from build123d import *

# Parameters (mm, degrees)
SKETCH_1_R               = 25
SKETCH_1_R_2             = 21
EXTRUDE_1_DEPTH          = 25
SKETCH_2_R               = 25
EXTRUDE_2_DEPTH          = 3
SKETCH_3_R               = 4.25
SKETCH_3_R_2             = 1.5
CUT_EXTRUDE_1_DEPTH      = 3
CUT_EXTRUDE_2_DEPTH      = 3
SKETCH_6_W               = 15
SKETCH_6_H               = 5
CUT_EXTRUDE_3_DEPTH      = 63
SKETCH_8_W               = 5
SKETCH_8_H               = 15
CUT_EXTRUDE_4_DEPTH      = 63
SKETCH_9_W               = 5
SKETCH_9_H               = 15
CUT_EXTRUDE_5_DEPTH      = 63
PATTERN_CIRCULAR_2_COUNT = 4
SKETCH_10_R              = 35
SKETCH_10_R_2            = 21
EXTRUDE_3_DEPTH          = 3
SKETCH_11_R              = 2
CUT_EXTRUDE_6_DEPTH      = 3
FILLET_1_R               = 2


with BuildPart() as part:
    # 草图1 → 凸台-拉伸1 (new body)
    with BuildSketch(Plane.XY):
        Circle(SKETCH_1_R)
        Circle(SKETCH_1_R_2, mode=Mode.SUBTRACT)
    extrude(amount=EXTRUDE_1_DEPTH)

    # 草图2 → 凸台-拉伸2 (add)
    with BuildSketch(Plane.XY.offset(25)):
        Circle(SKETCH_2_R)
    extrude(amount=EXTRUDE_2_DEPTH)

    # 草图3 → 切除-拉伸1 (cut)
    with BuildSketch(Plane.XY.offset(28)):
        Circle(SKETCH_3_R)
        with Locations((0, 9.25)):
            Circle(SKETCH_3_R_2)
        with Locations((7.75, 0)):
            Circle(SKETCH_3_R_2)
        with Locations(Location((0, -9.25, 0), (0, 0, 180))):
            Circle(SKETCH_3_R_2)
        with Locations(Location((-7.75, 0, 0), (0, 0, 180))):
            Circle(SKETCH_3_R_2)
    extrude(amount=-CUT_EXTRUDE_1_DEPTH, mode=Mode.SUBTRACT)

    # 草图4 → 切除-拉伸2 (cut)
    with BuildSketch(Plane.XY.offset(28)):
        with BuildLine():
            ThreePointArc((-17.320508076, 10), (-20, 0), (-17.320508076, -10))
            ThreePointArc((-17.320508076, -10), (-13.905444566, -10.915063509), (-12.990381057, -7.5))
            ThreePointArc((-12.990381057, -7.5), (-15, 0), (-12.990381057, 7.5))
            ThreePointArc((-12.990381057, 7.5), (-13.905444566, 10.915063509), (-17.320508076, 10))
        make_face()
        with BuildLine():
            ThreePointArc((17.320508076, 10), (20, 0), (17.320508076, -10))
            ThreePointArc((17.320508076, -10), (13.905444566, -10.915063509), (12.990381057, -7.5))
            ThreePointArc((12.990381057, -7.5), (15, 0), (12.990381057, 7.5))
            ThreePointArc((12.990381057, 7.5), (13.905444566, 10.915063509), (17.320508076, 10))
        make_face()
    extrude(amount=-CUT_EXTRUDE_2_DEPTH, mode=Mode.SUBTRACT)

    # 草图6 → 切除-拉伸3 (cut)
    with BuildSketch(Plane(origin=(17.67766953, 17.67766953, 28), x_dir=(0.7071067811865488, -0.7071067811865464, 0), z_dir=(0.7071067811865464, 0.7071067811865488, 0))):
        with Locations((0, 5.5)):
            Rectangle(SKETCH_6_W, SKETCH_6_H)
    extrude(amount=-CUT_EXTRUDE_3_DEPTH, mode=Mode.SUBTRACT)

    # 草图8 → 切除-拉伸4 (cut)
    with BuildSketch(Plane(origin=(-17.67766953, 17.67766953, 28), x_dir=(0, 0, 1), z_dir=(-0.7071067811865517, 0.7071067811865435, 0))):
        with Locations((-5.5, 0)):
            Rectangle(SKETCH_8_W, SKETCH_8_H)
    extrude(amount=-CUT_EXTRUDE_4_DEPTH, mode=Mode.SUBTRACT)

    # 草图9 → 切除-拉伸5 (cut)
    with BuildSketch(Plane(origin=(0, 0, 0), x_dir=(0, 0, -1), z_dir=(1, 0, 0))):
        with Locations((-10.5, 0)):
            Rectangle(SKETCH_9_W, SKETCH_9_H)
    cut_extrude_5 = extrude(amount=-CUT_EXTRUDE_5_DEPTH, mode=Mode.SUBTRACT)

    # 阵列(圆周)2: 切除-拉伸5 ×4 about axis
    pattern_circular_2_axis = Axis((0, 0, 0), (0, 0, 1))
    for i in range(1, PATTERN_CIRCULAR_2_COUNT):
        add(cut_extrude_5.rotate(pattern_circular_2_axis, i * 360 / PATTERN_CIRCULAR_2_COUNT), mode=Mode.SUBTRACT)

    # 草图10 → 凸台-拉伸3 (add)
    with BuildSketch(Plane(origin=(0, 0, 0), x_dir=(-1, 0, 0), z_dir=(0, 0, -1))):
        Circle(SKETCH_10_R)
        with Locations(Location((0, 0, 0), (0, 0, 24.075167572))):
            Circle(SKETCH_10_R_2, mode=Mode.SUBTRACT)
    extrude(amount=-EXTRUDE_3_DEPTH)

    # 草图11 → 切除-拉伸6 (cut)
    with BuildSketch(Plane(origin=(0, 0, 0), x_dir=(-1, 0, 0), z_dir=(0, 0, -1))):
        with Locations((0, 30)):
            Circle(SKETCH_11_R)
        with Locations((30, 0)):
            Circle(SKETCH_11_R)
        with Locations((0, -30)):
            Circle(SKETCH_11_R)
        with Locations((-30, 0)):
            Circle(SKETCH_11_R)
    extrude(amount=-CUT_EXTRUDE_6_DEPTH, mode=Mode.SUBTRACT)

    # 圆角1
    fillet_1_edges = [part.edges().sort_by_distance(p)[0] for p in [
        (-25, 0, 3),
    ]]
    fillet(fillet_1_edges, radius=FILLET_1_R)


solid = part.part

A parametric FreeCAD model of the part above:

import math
import FreeCAD as App
import Part
import Sketcher


def edges_at(feature, points):
    """Names of the edges that pass closest to the given points."""
    edges = feature.Shape.Edges
    near = lambda p: min(range(len(edges)), key=lambda i: edges[i].distToShape(Part.Vertex(*p))[0])
    return sorted({f"Edge{near(p) + 1}" for p in points})


def add_polygon(sketch, points):
    """Adds a closed chain of lines whose ends are joined by coincident constraints."""
    first, n = sketch.GeometryCount, len(points)
    for a, b in zip(points, points[1:] + points[:1]):
        sketch.addGeometry(Part.LineSegment(App.Vector(*a, 0), App.Vector(*b, 0)), False)
    for i in range(n):
        sketch.addConstraint(Sketcher.Constraint("Coincident", first + i, 2, first + (i + 1) % n, 1))

doc = App.newDocument("Part")
body = doc.addObject("PartDesign::Body", "Body")

sketch1 = body.newObject("Sketcher::SketchObject", "Sketch")
sketch1.AttachmentSupport = (doc.getObject("XY_Plane"), [""])
sketch1.MapMode = "FlatFace"
sketch1.addGeometry([
    Part.Circle(App.Vector(0, 0, 0), App.Vector(0, 0, 1), 25),
    Part.Circle(App.Vector(0, 0, 0), App.Vector(0, 0, 1), 21),
], False)
sketch1.addConstraint([
    Sketcher.Constraint("Coincident", 0, 3, -1, 1),
    Sketcher.Constraint("Coincident", 1, 3, -1, 1),
    Sketcher.Constraint("Diameter", 0, 50.0),
    Sketcher.Constraint("Diameter", 1, 42.0),
])
pad1 = body.newObject("PartDesign::Pad", "Pad")
pad1.Profile = sketch1
pad1.Length = 25

sketch2 = body.newObject("Sketcher::SketchObject", "Sketch001")
sketch2.AttachmentSupport = (doc.getObject("XY_Plane"), [""])
sketch2.MapMode = "FlatFace"
sketch2.AttachmentOffset = App.Placement(App.Vector(0, 0, 25), App.Rotation())
sketch2.addGeometry(Part.Circle(App.Vector(0, 0, 0), App.Vector(0, 0, 1), 25), False)
sketch2.addConstraint([
    Sketcher.Constraint("Coincident", 0, 3, -1, 1),
    Sketcher.Constraint("Diameter", 0, 50.0),
])
pad2 = body.newObject("PartDesign::Pad", "Pad001")
pad2.Profile = sketch2
pad2.Length = 3

sketch3 = body.newObject("Sketcher::SketchObject", "Sketch002")
sketch3.AttachmentSupport = (doc.getObject("XY_Plane"), [""])
sketch3.MapMode = "FlatFace"
sketch3.AttachmentOffset = App.Placement(App.Vector(0, 0, 28), App.Rotation())
sketch3.addGeometry([
    Part.Circle(App.Vector(0, 0, 0), App.Vector(0, 0, 1), 4.2),
    Part.Circle(App.Vector(0, 9.2, 0), App.Vector(0, 0, 1), 1.5),
    Part.Circle(App.Vector(7.8, 0, 0), App.Vector(0, 0, 1), 1.5),
    Part.Circle(App.Vector(0, -9.2, 0), App.Vector(0, 0, 1), 1.5),
    Part.Circle(App.Vector(-7.8, 0, 0), App.Vector(0, 0, 1), 1.5),
], False)
sketch3.addConstraint([
    Sketcher.Constraint("Coincident", 0, 3, -1, 1),
    Sketcher.Constraint("Equal", 1, 2),
    Sketcher.Constraint("Equal", 2, 3),
    Sketcher.Constraint("Equal", 3, 4),
    Sketcher.Constraint("Symmetric", 1, 3, 3, 3, -1, 1),
    Sketcher.Constraint("Symmetric", 2, 3, 4, 3, -1, 1),
    Sketcher.Constraint("PointOnObject", 1, 3, -2),
    Sketcher.Constraint("PointOnObject", 2, 3, -1),
    Sketcher.Constraint("Diameter", 1, 3.0),
    Sketcher.Constraint("Diameter", 0, 8.5),
    Sketcher.Constraint("DistanceY", 3, 3, 1, 3, 18.5),
    Sketcher.Constraint("DistanceX", 4, 3, 2, 3, 15.5),
])
pocket1 = body.newObject("PartDesign::Pocket", "Pocket")
pocket1.Profile = sketch3
pocket1.Length = 3

sketch4 = body.newObject("Sketcher::SketchObject", "Sketch003")
sketch4.AttachmentSupport = (doc.getObject("XY_Plane"), [""])
sketch4.MapMode = "FlatFace"
sketch4.AttachmentOffset = App.Placement(App.Vector(0, 0, 28), App.Rotation())
sketch4.addGeometry([
    Part.ArcOfCircle(Part.Circle(App.Vector(0, 0, 0), App.Vector(0, 0, 1), 20), math.radians(150), math.radians(210)),
    Part.ArcOfCircle(Part.Circle(App.Vector(-15.2, -8.8, 0), App.Vector(0, 0, 1), 2.5), math.radians(-150), math.radians(30)),
    Part.ArcOfCircle(Part.Circle(App.Vector(0, 0, 0), App.Vector(0, 0, 1), 15), math.radians(150), math.radians(210)),
    Part.ArcOfCircle(Part.Circle(App.Vector(-15.2, 8.8, 0), App.Vector(0, 0, 1), 2.5), math.radians(-30), math.radians(150)),
    Part.ArcOfCircle(Part.Circle(App.Vector(0, 0, 0), App.Vector(0, 0, 1), 20), math.radians(-30), math.radians(30)),
    Part.ArcOfCircle(Part.Circle(App.Vector(15.2, 8.8, 0), App.Vector(0, 0, 1), 2.5), math.radians(30), math.radians(210)),
    Part.ArcOfCircle(Part.Circle(App.Vector(0, 0, 0), App.Vector(0, 0, 1), 15), math.radians(-30), math.radians(30)),
    Part.ArcOfCircle(Part.Circle(App.Vector(15.2, -8.8, 0), App.Vector(0, 0, 1), 2.5), math.radians(150), math.radians(330)),
], False)
sketch4.addConstraint([
    Sketcher.Constraint("Tangent", 0, 2, 1, 1),
    Sketcher.Constraint("Tangent", 1, 2, 2, 2),
    Sketcher.Constraint("Tangent", 2, 1, 3, 1),
    Sketcher.Constraint("Tangent", 3, 2, 0, 1),
    Sketcher.Constraint("Tangent", 4, 2, 5, 1),
    Sketcher.Constraint("Tangent", 5, 2, 6, 2),
    Sketcher.Constraint("Tangent", 6, 1, 7, 1),
    Sketcher.Constraint("Tangent", 7, 2, 4, 1),
    Sketcher.Constraint("Coincident", 0, 3, -1, 1),
    Sketcher.Constraint("Coincident", 2, 3, -1, 1),
    Sketcher.Constraint("Coincident", 4, 3, -1, 1),
    Sketcher.Constraint("Coincident", 6, 3, -1, 1),
    Sketcher.Constraint("Equal", 0, 4),
    Sketcher.Constraint("Equal", 3, 5),
    Sketcher.Constraint("Horizontal", 3, 3, 5, 3),
    Sketcher.Constraint("Horizontal", 1, 3, 7, 3),
    Sketcher.Constraint("Vertical", 1, 3, 3, 3),
    Sketcher.Constraint("Radius", 0, 20.0),
    Sketcher.Constraint("Radius", 2, 15.0),
    Sketcher.Constraint("DistanceY", 0, 2, -1, 1, 10.0),
])
pocket2 = body.newObject("PartDesign::Pocket", "Pocket001")
pocket2.Profile = sketch4
pocket2.Length = 3

sketch5 = body.newObject("Sketcher::SketchObject", "Sketch004")
sketch5.Placement = App.Placement(App.Vector(17.67767, 17.67767, 28), App.Rotation(App.Vector(0.707106781, -0.707106781, 0), App.Vector(0, 0, -0.999999999), App.Vector(0.707106781, 0.707106781, 0), "ZXY"))
add_polygon(sketch5, [(-7.5, 8), (-7.5, 3), (7.5, 3), (7.5, 8)])
sketch5.addConstraint([
    Sketcher.Constraint("Vertical", 0),
    Sketcher.Constraint("Horizontal", 1),
    Sketcher.Constraint("Vertical", 2),
    Sketcher.Constraint("Horizontal", 3),
    Sketcher.Constraint("DistanceX", 1, 1, 1, 2, 15.0),
    Sketcher.Constraint("DistanceY", 0, 2, 0, 1, 5.0),
    Sketcher.Constraint("DistanceY", -1, 1, 0, 2, 3.0),
    Sketcher.Constraint("DistanceX", 0, 2, -1, 1, 7.5),
])
pocket3 = body.newObject("PartDesign::Pocket", "Pocket002")
pocket3.Profile = sketch5
pocket3.Length = 63

sketch6 = body.newObject("Sketcher::SketchObject", "Sketch005")
sketch6.Placement = App.Placement(App.Vector(-17.67767, 17.67767, 28), App.Rotation(App.Vector(0, 0, 1), App.Vector(0.707106781, 0.707106781, 0), App.Vector(-0.707106781, 0.707106781, 0), "ZXY"))
add_polygon(sketch6, [(-8, 7), (-8, -7), (-3, -7), (-3, 7)])
sketch6.addConstraint([
    Sketcher.Constraint("Vertical", 0),
    Sketcher.Constraint("Horizontal", 1),
    Sketcher.Constraint("Vertical", 2),
    Sketcher.Constraint("Horizontal", 3),
    Sketcher.Constraint("DistanceX", 1, 1, 1, 2, 5.0),
    Sketcher.Constraint("DistanceY", 0, 2, 0, 1, 15.0),
    Sketcher.Constraint("DistanceX", 0, 2, -1, 1, 8.0),
    Sketcher.Constraint("DistanceY", 0, 2, -1, 1, 7.5),
])
pocket4 = body.newObject("PartDesign::Pocket", "Pocket003")
pocket4.Profile = sketch6
pocket4.Length = 63

sketch7 = body.newObject("Sketcher::SketchObject", "Sketch006")
sketch7.AttachmentSupport = (doc.getObject("YZ_Plane"), [""])
sketch7.MapMode = "FlatFace"
add_polygon(sketch7, [(8, 13), (-8, 13), (-8, 8), (8, 8)])
sketch7.addConstraint([
    Sketcher.Constraint("Horizontal", 0),
    Sketcher.Constraint("Vertical", 1),
    Sketcher.Constraint("Horizontal", 2),
    Sketcher.Constraint("Vertical", 3),
    Sketcher.Constraint("DistanceX", 0, 2, 0, 1, 15.0),
    Sketcher.Constraint("DistanceY", 1, 2, 1, 1, 5.0),
    Sketcher.Constraint("DistanceY", -1, 1, 0, 2, 13.0),
    Sketcher.Constraint("DistanceX", 0, 2, -1, 1, 7.5),
])
pocket5 = body.newObject("PartDesign::Pocket", "Pocket004")
pocket5.Profile = sketch7
pocket5.Length = 63
doc.recompute()

polarpattern = body.newObject("PartDesign::PolarPattern", "PolarPattern")
polarpattern.Originals = [pocket5]
polarpattern.Axis = (doc.getObject("Z_Axis"), [""])
polarpattern.Angle = 360
polarpattern.Occurrences = 4
body.Tip = polarpattern

sketch8 = body.newObject("Sketcher::SketchObject", "Sketch007")
sketch8.AttachmentSupport = (doc.getObject("XY_Plane"), [""])
sketch8.MapMode = "FlatFace"
sketch8.addGeometry([
    Part.Circle(App.Vector(0, 0, 0), App.Vector(0, 0, 1), 35),
    Part.Circle(App.Vector(0, 0, 0), App.Vector(0, 0, 1), 21),
], False)
sketch8.addConstraint([
    Sketcher.Constraint("Coincident", 0, 3, -1, 1),
    Sketcher.Constraint("Coincident", 1, 3, -1, 1),
    Sketcher.Constraint("Diameter", 0, 70.0),
    Sketcher.Constraint("Diameter", 1, 42.0),
])
pad3 = body.newObject("PartDesign::Pad", "Pad002")
pad3.Profile = sketch8
pad3.Length = 3

sketch9 = body.newObject("Sketcher::SketchObject", "Sketch008")
sketch9.AttachmentSupport = (doc.getObject("XY_Plane"), [""])
sketch9.MapMode = "FlatFace"
sketch9.addGeometry([
    Part.Circle(App.Vector(0, 30, 0), App.Vector(0, 0, 1), 2),
    Part.Circle(App.Vector(-30, 0, 0), App.Vector(0, 0, 1), 2),
    Part.Circle(App.Vector(0, -30, 0), App.Vector(0, 0, 1), 2),
    Part.Circle(App.Vector(30, 0, 0), App.Vector(0, 0, 1), 2),
], False)
sketch9.addConstraint([
    Sketcher.Constraint("Equal", 0, 1),
    Sketcher.Constraint("Equal", 1, 2),
    Sketcher.Constraint("Equal", 2, 3),
    Sketcher.Constraint("Symmetric", 0, 3, 2, 3, -1, 1),
    Sketcher.Constraint("Symmetric", 1, 3, 3, 3, -1, 1),
    Sketcher.Constraint("PointOnObject", 0, 3, -2),
    Sketcher.Constraint("PointOnObject", 1, 3, -1),
    Sketcher.Constraint("Diameter", 0, 4.0),
    Sketcher.Constraint("DistanceY", -1, 1, 0, 3, 30.0),
    Sketcher.Constraint("DistanceX", 1, 3, -1, 1, 30.0),
])
pocket6 = body.newObject("PartDesign::Pocket", "Pocket005")
pocket6.Profile = sketch9
pocket6.Length = 3
pocket6.Reversed = True
doc.recompute()

fillet = body.newObject("PartDesign::Fillet", "Fillet")
fillet.Base = (pocket6, edges_at(pocket6, [(-25, 0, 3)]))
fillet.Radius = 2

doc.recompute()
